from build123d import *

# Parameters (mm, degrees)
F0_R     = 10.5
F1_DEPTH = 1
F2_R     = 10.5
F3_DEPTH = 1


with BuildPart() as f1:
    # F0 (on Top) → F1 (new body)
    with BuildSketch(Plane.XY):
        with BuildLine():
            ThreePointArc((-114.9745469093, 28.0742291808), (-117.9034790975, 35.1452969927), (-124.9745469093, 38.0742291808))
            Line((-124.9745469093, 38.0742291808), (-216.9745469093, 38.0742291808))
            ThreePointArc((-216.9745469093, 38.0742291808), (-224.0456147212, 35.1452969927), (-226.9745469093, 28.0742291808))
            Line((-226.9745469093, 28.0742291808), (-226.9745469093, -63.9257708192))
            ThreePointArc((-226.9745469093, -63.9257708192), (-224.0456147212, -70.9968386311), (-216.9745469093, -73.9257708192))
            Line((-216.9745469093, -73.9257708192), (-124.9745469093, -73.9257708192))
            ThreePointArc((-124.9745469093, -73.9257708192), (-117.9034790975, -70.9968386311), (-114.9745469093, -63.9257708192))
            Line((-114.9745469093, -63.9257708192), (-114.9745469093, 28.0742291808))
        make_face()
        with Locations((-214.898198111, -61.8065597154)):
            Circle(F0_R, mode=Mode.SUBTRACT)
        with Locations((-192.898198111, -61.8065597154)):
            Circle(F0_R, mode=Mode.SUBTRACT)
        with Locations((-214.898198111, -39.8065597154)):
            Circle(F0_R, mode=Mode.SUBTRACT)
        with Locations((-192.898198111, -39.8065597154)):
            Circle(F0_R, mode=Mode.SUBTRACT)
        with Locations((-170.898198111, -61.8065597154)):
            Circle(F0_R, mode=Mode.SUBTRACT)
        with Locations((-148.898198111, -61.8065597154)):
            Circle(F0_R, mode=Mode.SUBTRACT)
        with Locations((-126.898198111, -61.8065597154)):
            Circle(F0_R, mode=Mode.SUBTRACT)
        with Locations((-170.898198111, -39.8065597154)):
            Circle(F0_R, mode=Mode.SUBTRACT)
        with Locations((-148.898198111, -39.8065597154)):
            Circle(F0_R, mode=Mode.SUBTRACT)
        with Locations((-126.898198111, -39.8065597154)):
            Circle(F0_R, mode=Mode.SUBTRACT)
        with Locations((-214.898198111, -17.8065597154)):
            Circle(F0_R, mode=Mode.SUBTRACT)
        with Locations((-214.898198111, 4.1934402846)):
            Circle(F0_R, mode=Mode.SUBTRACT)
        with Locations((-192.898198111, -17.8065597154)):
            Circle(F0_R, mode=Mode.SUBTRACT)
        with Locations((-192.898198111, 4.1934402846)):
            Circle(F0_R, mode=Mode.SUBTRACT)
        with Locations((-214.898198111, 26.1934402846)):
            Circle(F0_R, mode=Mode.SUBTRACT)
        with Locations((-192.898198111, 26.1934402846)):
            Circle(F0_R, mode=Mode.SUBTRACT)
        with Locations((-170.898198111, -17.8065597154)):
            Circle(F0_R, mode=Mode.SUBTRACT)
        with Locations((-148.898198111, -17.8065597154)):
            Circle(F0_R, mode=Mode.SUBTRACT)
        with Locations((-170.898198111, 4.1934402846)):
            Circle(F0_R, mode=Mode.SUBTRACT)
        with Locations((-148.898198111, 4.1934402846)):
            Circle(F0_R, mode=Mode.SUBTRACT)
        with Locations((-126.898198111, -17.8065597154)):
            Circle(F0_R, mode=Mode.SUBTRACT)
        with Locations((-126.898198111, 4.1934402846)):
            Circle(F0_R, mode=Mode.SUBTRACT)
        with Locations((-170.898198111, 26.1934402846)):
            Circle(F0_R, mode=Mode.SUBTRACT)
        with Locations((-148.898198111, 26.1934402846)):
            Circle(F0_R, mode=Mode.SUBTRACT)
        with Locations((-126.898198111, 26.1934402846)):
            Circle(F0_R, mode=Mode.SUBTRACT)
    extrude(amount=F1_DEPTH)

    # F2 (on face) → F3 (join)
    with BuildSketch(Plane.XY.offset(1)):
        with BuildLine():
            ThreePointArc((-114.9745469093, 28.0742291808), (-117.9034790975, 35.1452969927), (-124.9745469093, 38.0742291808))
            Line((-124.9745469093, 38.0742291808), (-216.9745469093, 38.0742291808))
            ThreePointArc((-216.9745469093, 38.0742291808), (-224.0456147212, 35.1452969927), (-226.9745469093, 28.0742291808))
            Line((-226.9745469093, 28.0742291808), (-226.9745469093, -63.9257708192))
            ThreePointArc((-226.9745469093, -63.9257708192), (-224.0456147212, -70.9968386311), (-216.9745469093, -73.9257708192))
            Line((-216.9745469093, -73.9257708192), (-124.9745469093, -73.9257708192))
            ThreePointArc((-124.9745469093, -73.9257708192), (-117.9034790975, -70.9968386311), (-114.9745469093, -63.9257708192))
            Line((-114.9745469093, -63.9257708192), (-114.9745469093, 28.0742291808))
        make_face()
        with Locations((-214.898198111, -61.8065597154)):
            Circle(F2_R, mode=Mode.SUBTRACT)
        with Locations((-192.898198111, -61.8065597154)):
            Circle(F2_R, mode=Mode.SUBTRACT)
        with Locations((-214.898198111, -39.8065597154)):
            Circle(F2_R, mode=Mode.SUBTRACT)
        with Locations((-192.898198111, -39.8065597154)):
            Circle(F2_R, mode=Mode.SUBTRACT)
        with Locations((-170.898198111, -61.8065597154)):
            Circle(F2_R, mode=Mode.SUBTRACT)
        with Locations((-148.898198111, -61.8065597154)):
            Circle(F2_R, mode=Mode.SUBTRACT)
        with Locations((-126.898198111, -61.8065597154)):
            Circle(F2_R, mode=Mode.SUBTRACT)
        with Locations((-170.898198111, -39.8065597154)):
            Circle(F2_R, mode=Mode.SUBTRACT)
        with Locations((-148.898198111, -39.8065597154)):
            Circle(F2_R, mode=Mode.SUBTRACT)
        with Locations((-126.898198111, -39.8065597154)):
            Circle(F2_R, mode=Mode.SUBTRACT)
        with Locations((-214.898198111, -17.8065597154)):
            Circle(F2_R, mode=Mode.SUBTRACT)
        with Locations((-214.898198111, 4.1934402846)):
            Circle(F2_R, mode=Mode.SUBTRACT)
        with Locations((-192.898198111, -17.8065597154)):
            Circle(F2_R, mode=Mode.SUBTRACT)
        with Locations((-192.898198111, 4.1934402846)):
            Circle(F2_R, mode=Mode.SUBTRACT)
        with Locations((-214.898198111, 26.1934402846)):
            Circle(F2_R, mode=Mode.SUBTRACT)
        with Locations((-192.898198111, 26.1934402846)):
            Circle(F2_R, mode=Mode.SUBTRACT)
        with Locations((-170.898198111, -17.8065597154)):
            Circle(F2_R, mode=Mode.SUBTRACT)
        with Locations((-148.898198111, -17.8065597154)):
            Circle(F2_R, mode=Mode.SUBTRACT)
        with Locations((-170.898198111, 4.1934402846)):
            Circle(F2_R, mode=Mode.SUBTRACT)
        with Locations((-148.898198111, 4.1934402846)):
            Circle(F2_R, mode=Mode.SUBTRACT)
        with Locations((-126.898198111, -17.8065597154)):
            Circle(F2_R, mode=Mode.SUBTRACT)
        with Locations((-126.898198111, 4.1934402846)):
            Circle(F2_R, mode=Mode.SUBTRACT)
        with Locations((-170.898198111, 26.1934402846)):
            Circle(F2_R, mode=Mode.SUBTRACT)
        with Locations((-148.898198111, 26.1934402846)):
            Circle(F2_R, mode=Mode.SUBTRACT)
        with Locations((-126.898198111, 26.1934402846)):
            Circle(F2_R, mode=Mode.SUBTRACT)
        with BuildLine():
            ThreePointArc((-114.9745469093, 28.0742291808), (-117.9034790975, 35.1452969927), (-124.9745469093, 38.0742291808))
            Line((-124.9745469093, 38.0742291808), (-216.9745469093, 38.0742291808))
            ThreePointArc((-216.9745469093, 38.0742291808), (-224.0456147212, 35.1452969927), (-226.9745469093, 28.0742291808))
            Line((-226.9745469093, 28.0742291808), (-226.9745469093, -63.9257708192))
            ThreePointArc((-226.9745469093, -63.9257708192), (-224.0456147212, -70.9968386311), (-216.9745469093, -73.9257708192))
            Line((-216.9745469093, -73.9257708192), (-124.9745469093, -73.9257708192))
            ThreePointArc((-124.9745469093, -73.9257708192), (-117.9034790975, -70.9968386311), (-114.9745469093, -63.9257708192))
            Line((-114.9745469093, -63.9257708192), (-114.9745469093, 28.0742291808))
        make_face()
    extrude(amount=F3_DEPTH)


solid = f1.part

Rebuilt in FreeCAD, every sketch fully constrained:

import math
import FreeCAD as App
import Part
import Sketcher

doc = App.newDocument("Part")
body = doc.addObject("PartDesign::Body", "Body")

sketch1 = doc.addObject("Sketcher::SketchObject", "Sketch")
body.addObject(sketch1)
sketch1.AttachmentSupport = (doc.XY_Plane, [""])
sketch1.MapMode = "FlatFace"
sketch1.addGeometry([
    Part.ArcOfCircle(Part.Circle(App.Vector(-125, 28, 0), App.Vector(0, 0, 1), 10), math.radians(0), math.radians(90)),
    Part.LineSegment(App.Vector(-125, 38, 0), App.Vector(-217, 38, 0)),
    Part.ArcOfCircle(Part.Circle(App.Vector(-217, 28, 0), App.Vector(0, 0, 1), 10), math.radians(90), math.radians(180)),
    Part.LineSegment(App.Vector(-227, 28, 0), App.Vector(-227, -64, 0)),
    Part.ArcOfCircle(Part.Circle(App.Vector(-217, -64, 0), App.Vector(0, 0, 1), 10), math.radians(180), math.radians(270)),
    Part.LineSegment(App.Vector(-217, -74, 0), App.Vector(-125, -74, 0)),
    Part.ArcOfCircle(Part.Circle(App.Vector(-125, -64, 0), App.Vector(0, 0, 1), 10), math.radians(-90), math.radians(0)),
    Part.LineSegment(App.Vector(-115, -64, 0), App.Vector(-115, 28, 0)),
    Part.Circle(App.Vector(-215, -62, 0), App.Vector(0, 0, 1), 10),
    Part.Circle(App.Vector(-193, -62, 0), App.Vector(0, 0, 1), 10),
    Part.Circle(App.Vector(-215, -40, 0), App.Vector(0, 0, 1), 10),
    Part.Circle(App.Vector(-193, -40, 0), App.Vector(0, 0, 1), 10),
    Part.Circle(App.Vector(-171, -62, 0), App.Vector(0, 0, 1), 10),
    Part.Circle(App.Vector(-149, -62, 0), App.Vector(0, 0, 1), 10),
    Part.Circle(App.Vector(-127, -62, 0), App.Vector(0, 0, 1), 10),
    Part.Circle(App.Vector(-171, -40, 0), App.Vector(0, 0, 1), 10),
    Part.Circle(App.Vector(-149, -40, 0), App.Vector(0, 0, 1), 10),
    Part.Circle(App.Vector(-127, -40, 0), App.Vector(0, 0, 1), 10),
    Part.Circle(App.Vector(-215, -18, 0), App.Vector(0, 0, 1), 10),
    Part.Circle(App.Vector(-215, 4, 0), App.Vector(0, 0, 1), 10),
    Part.Circle(App.Vector(-193, -18, 0), App.Vector(0, 0, 1), 10),
    Part.Circle(App.Vector(-193, 4, 0), App.Vector(0, 0, 1), 10),
    Part.Circle(App.Vector(-215, 26, 0), App.Vector(0, 0, 1), 10),
    Part.Circle(App.Vector(-193, 26, 0), App.Vector(0, 0, 1), 10),
    Part.Circle(App.Vector(-171, -18, 0), App.Vector(0, 0, 1), 10),
    Part.Circle(App.Vector(-149, -18, 0), App.Vector(0, 0, 1), 10),
    Part.Circle(App.Vector(-171, 4, 0), App.Vector(0, 0, 1), 10),
    Part.Circle(App.Vector(-149, 4, 0), App.Vector(0, 0, 1), 10),
    Part.Circle(App.Vector(-127, -18, 0), App.Vector(0, 0, 1), 10),
    Part.Circle(App.Vector(-127, 4, 0), App.Vector(0, 0, 1), 10),
    Part.Circle(App.Vector(-171, 26, 0), App.Vector(0, 0, 1), 10),
    Part.Circle(App.Vector(-149, 26, 0), App.Vector(0, 0, 1), 10),
    Part.Circle(App.Vector(-127, 26, 0), App.Vector(0, 0, 1), 10),
], False)
sketch1.addConstraint([
    Sketcher.Constraint("Tangent", 0, 2, 1, 1),
    Sketcher.Constraint("Tangent", 1, 2, 2, 1),
    Sketcher.Constraint("Tangent", 2, 2, 3, 1),
    Sketcher.Constraint("Tangent", 3, 2, 4, 1),
    Sketcher.Constraint("Tangent", 4, 2, 5, 1),
    Sketcher.Constraint("Tangent", 5, 2, 6, 1),
    Sketcher.Constraint("Tangent", 6, 2, 7, 1),
    Sketcher.Constraint("Tangent", 7, 2, 0, 1),
    Sketcher.Constraint("Horizontal", 1),
    Sketcher.Constraint("Vertical", 3),
    Sketcher.Constraint("Horizontal", 5),
    Sketcher.Constraint("Vertical", 7),
    Sketcher.Constraint("Equal", 0, 2),
    Sketcher.Constraint("Equal", 2, 4),
    Sketcher.Constraint("Equal", 4, 6),
    Sketcher.Constraint("Equal", 8, 9),
    Sketcher.Constraint("Equal", 9, 10),
    Sketcher.Constraint("Equal", 10, 11),
    Sketcher.Constraint("Equal", 11, 12),
    Sketcher.Constraint("Equal", 12, 13),
    Sketcher.Constraint("Equal", 13, 14),
    Sketcher.Constraint("Equal", 14, 15),
    Sketcher.Constraint("Equal", 15, 16),
    Sketcher.Constraint("Equal", 16, 17),
    Sketcher.Constraint("Equal", 17, 18),
    Sketcher.Constraint("Equal", 18, 19),
    Sketcher.Constraint("Equal", 19, 20),
    Sketcher.Constraint("Equal", 20, 21),
    Sketcher.Constraint("Equal", 21, 22),
    Sketcher.Constraint("Equal", 22, 23),
    Sketcher.Constraint("Equal", 23, 24),
    Sketcher.Constraint("Equal", 24, 25),
    Sketcher.Constraint("Equal", 25, 26),
    Sketcher.Constraint("Equal", 26, 27),
    Sketcher.Constraint("Equal", 27, 28),
    Sketcher.Constraint("Equal", 28, 29),
    Sketcher.Constraint("Equal", 29, 30),
    Sketcher.Constraint("Equal", 30, 31),
    Sketcher.Constraint("Equal", 31, 32),
    Sketcher.Constraint("Horizontal", 8, 3, 9, 3),
    Sketcher.Constraint("Horizontal", 10, 3, 11, 3),
    Sketcher.Constraint("Horizontal", 9, 3, 12, 3),
    Sketcher.Constraint("Horizontal", 12, 3, 13, 3),
    Sketcher.Constraint("Horizontal", 13, 3, 14, 3),
    Sketcher.Constraint("Horizontal", 11, 3, 15, 3),
    Sketcher.Constraint("Horizontal", 15, 3, 16, 3),
    Sketcher.Constraint("Horizontal", 16, 3, 17, 3),
    Sketcher.Constraint("Horizontal", 18, 3, 20, 3),
    Sketcher.Constraint("Horizontal", 19, 3, 21, 3),
    Sketcher.Constraint("Horizontal", 22, 3, 23, 3),
    Sketcher.Constraint("Horizontal", 20, 3, 24, 3),
    Sketcher.Constraint("Horizontal", 24, 3, 25, 3),
    Sketcher.Constraint("Horizontal", 21, 3, 26, 3),
    Sketcher.Constraint("Horizontal", 26, 3, 27, 3),
    Sketcher.Constraint("Horizontal", 25, 3, 28, 3),
    Sketcher.Constraint("Horizontal", 27, 3, 29, 3),
    Sketcher.Constraint("Horizontal", 23, 3, 30, 3),
    Sketcher.Constraint("Horizontal", 30, 3, 31, 3),
    Sketcher.Constraint("Horizontal", 31, 3, 32, 3),
    Sketcher.Constraint("Vertical", 8, 3, 10, 3),
    Sketcher.Constraint("Vertical", 9, 3, 11, 3),
    Sketcher.Constraint("Vertical", 12, 3, 15, 3),
    Sketcher.Constraint("Vertical", 13, 3, 16, 3),
    Sketcher.Constraint("Vertical", 14, 3, 17, 3),
    Sketcher.Constraint("Vertical", 10, 3, 18, 3),
    Sketcher.Constraint("Vertical", 18, 3, 19, 3),
    Sketcher.Constraint("Vertical", 11, 3, 20, 3),
    Sketcher.Constraint("Vertical", 20, 3, 21, 3),
    Sketcher.Constraint("Vertical", 19, 3, 22, 3),
    Sketcher.Constraint("Vertical", 21, 3, 23, 3),
    Sketcher.Constraint("Vertical", 15, 3, 24, 3),
    Sketcher.Constraint("Vertical", 16, 3, 25, 3),
    Sketcher.Constraint("Vertical", 24, 3, 26, 3),
    Sketcher.Constraint("Vertical", 25, 3, 27, 3),
    Sketcher.Constraint("Vertical", 17, 3, 28, 3),
    Sketcher.Constraint("Vertical", 28, 3, 29, 3),
    Sketcher.Constraint("Vertical", 26, 3, 30, 3),
    Sketcher.Constraint("Vertical", 27, 3, 31, 3),
    Sketcher.Constraint("Vertical", 29, 3, 32, 3),
    Sketcher.Constraint("Equal", 5, 3),
    Sketcher.Constraint("Diameter", 8, 21.0),
    Sketcher.Constraint("Radius", 0, 10.0),
    Sketcher.Constraint("DistanceX", 1, 2, 1, 1, 92.0),
    Sketcher.Constraint("DistanceX", 8, 3, 9, 3, 22.0),
    Sketcher.Constraint("DistanceY", 8, 3, 10, 3, 22.0),
    Sketcher.Constraint("DistanceX", 9, 3, 12, 3, 22.0),
    Sketcher.Constraint("DistanceX", 12, 3, 13, 3, 22.0),
    Sketcher.Constraint("DistanceX", 13, 3, 14, 3, 22.0),
    Sketcher.Constraint("DistanceY", 10, 3, 18, 3, 22.0),
    Sketcher.Constraint("DistanceY", 18, 3, 19, 3, 22.0),
    Sketcher.Constraint("DistanceY", 19, 3, 22, 3, 22.0),
    Sketcher.Constraint("DistanceX", 8, 3, -1, 1, 214.898198),
    Sketcher.Constraint("DistanceY", -1, 1, 0, 3, 28.074229),
    Sketcher.Constraint("DistanceY", 8, 3, -1, 1, 61.80656),
    Sketcher.Constraint("DistanceX", 4, 3, 8, 3, 2.076349),
])
pad1 = doc.addObject("PartDesign::Pad", "Pad")
body.addObject(pad1)
pad1.Profile = sketch1
pad1.Length = 1

sketch2 = doc.addObject("Sketcher::SketchObject", "Sketch001")
body.addObject(sketch2)
sketch2.AttachmentSupport = (doc.XY_Plane, [""])
sketch2.MapMode = "FlatFace"
sketch2.AttachmentOffset = App.Placement(App.Vector(0, 0, 1), App.Rotation())
sketch2.addGeometry([
    Part.ArcOfCircle(Part.Circle(App.Vector(-125, 28, 0), App.Vector(0, 0, 1), 10), math.radians(0), math.radians(90)),
    Part.LineSegment(App.Vector(-125, 38, 0), App.Vector(-217, 38, 0)),
    Part.ArcOfCircle(Part.Circle(App.Vector(-217, 28, 0), App.Vector(0, 0, 1), 10), math.radians(90), math.radians(180)),
    Part.LineSegment(App.Vector(-227, 28, 0), App.Vector(-227, -64, 0)),
    Part.ArcOfCircle(Part.Circle(App.Vector(-217, -64, 0), App.Vector(0, 0, 1), 10), math.radians(180), math.radians(270)),
    Part.LineSegment(App.Vector(-217, -74, 0), App.Vector(-125, -74, 0)),
    Part.ArcOfCircle(Part.Circle(App.Vector(-125, -64, 0), App.Vector(0, 0, 1), 10), math.radians(-90), math.radians(0)),
    Part.LineSegment(App.Vector(-115, -64, 0), App.Vector(-115, 28, 0)),
], False)
sketch2.addConstraint([
    Sketcher.Constraint("Tangent", 0, 2, 1, 1),
    Sketcher.Constraint("Tangent", 1, 2, 2, 1),
    Sketcher.Constraint("Tangent", 2, 2, 3, 1),
    Sketcher.Constraint("Tangent", 3, 2, 4, 1),
    Sketcher.Constraint("Tangent", 4, 2, 5, 1),
    Sketcher.Constraint("Tangent", 5, 2, 6, 1),
    Sketcher.Constraint("Tangent", 6, 2, 7, 1),
    Sketcher.Constraint("Tangent", 7, 2, 0, 1),
    Sketcher.Constraint("Horizontal", 1),
    Sketcher.Constraint("Vertical", 3),
    Sketcher.Constraint("Horizontal", 5),
    Sketcher.Constraint("Vertical", 7),
    Sketcher.Constraint("Equal", 0, 2),
    Sketcher.Constraint("Equal", 2, 4),
    Sketcher.Constraint("Equal", 4, 6),
    Sketcher.Constraint("Equal", 5, 3),
    Sketcher.Constraint("Radius", 0, 10.0),
    Sketcher.Constraint("DistanceX", 1, 2, 1, 1, 92.0),
    Sketcher.Constraint("DistanceY", -1, 1, 0, 3, 28.074229),
    Sketcher.Constraint("DistanceX", 0, 3, -1, 1, 124.974547),
])
pad2 = doc.addObject("PartDesign::Pad", "Pad001")
body.addObject(pad2)
pad2.Profile = sketch2
pad2.Length = 1

doc.recompute()
